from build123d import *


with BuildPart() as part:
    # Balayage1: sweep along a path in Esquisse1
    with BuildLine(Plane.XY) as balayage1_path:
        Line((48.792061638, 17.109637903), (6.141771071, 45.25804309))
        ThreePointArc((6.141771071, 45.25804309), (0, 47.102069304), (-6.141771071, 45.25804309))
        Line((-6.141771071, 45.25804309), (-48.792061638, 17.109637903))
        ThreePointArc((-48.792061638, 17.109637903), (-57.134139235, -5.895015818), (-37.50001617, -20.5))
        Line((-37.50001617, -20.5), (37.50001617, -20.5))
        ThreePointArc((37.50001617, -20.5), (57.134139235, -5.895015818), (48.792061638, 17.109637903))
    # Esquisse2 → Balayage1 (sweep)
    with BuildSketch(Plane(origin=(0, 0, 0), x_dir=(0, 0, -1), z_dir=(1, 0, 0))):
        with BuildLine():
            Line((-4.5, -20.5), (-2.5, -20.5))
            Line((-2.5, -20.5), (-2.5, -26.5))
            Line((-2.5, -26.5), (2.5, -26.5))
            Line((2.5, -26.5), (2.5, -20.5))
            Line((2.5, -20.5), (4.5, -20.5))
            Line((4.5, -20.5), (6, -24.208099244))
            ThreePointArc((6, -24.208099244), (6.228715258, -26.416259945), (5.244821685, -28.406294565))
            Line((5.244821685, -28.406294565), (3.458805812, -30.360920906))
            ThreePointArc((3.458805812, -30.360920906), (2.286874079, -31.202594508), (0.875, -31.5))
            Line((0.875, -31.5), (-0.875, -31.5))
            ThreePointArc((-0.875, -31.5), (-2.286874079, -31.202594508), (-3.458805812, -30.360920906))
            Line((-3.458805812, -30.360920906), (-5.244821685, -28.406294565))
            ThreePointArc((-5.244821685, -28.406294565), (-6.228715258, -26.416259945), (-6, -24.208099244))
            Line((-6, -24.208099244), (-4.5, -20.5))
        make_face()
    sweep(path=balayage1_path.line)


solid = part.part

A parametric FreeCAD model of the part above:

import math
import FreeCAD as App
import Part
import Sketcher
from FreeCAD import Vector
Q = App.Units.Quantity

doc = App.newDocument("Part")
params = doc.addObject("Spreadsheet::Sheet", "Params")
for row, (alias, value) in enumerate([
    ("sketch1_radius", "4 mm"),
    ("sketch1_radius2", "3.5 mm"),
    ("sketch1_width", "6 mm"),
    ("sketch1_height", "2 mm"),
    ("sketch1_height2", "5 mm"),
    ("sketch2_radius", "20.5 mm"),
    ("sketch2_radius2", "11.15 mm"),
], start=1):
    params.set(f"A{row}", alias)
    params.set(f"B{row}", "=" + value)
    params.setAlias(f"B{row}", alias)

body = doc.addObject("PartDesign::Body", "Body")

# Sketch on YZ plane
sketch1 = body.newObject("Sketcher::SketchObject", "Sketch")
sketch1.AttachmentSupport = (doc.getObject("YZ_Plane"), [""])
sketch1.MapMode = "FlatFace"
sketch1.addGeometry([
    Part.LineSegment(Vector(-20.5, 2.5, 0), Vector(-20.5, 4.5, 0)),  # 0
    Part.LineSegment(Vector(-20.5, 4.5, 0), Vector(-24.208099, 6, 0)),  # 1
    Part.ArcOfCircle(Part.Circle(Vector(-25.708099, 2.291901, 0), Vector(0, 0, 1), 4), math.radians(67.975687), math.radians(132.419124)),  # 2
    Part.LineSegment(Vector(-28.406295, 5.244822, 0), Vector(-30.360921, 3.458806, 0)),  # 3
    Part.ArcOfCircle(Part.Circle(Vector(-28, 0.875, 0), Vector(0, 0, 1), 3.5), math.radians(132.419124), math.radians(180)),  # 4
    Part.LineSegment(Vector(-31.5, 0.875, 0), Vector(-31.5, -0.875, 0)),  # 5
    Part.ArcOfCircle(Part.Circle(Vector(-28, -0.875, 0), Vector(0, 0, 1), 3.5), math.radians(-180), math.radians(-132.419124)),  # 6
    Part.LineSegment(Vector(-30.360921, -3.458806, 0), Vector(-28.406295, -5.244822, 0)),  # 7
    Part.ArcOfCircle(Part.Circle(Vector(-25.708099, -2.291901, 0), Vector(0, 0, 1), 4), math.radians(-132.419124), math.radians(-67.975687)),  # 8
    Part.LineSegment(Vector(-24.208099, -6, 0), Vector(-20.5, -4.5, 0)),  # 9
    Part.LineSegment(Vector(-20.5, -4.5, 0), Vector(-20.5, -2.5, 0)),  # 10
    Part.LineSegment(Vector(-20.5, -2.5, 0), Vector(-26.5, -2.5, 0)),  # 11
    Part.LineSegment(Vector(-26.5, -2.5, 0), Vector(-26.5, 2.5, 0)),  # 12
    Part.LineSegment(Vector(-26.5, 2.5, 0), Vector(-20.5, 2.5, 0)),  # 13
], False)
sketch1.addConstraint([
    Sketcher.Constraint("Coincident", 0, 2, 1, 1),
    Sketcher.Constraint("Tangent", 1, 2, 2, 1),
    Sketcher.Constraint("Tangent", 2, 2, 3, 1),
    Sketcher.Constraint("Tangent", 3, 2, 4, 1),
    Sketcher.Constraint("Tangent", 4, 2, 5, 1),
    Sketcher.Constraint("Tangent", 5, 2, 6, 1),
    Sketcher.Constraint("Tangent", 6, 2, 7, 1),
    Sketcher.Constraint("Tangent", 7, 2, 8, 1),
    Sketcher.Constraint("Tangent", 8, 2, 9, 1),
    Sketcher.Constraint("Coincident", 9, 2, 10, 1),
    Sketcher.Constraint("Coincident", 10, 2, 11, 1),
    Sketcher.Constraint("Coincident", 11, 2, 12, 1),
    Sketcher.Constraint("Coincident", 12, 2, 13, 1),
    Sketcher.Constraint("Coincident", 13, 2, 0, 1),
    Sketcher.Constraint("Vertical", 0),
    Sketcher.Constraint("Vertical", 5),
    Sketcher.Constraint("Vertical", 10),
    Sketcher.Constraint("Horizontal", 11),
    Sketcher.Constraint("Vertical", 12),
    Sketcher.Constraint("Horizontal", 13),
    Sketcher.Constraint("Equal", 4, 6),
    Sketcher.Constraint("Equal", 2, 8),
    Sketcher.Constraint("Symmetric", 2, 3, 8, 3, -1),
    Sketcher.Constraint("Symmetric", 0, 2, 9, 2, -1),
    Sketcher.Constraint("Vertical", 3, 2, 6, 2),
    Sketcher.Constraint("Equal", 0, 10),
    Sketcher.Constraint("Radius", 2, Q("4 mm")),
    Sketcher.Constraint("Radius", 4, Q("3.5 mm")),
    Sketcher.Constraint("DistanceX", 11, 2, 11, 1, Q("6 mm")),
    Sketcher.Constraint("DistanceY", 0, 1, 0, 2, Q("2 mm")),
    Sketcher.Constraint("DistanceY", 12, 1, 12, 2, Q("5 mm")),
    Sketcher.Constraint("Distance", 1, Q("4 mm")),
    Sketcher.Constraint("DistanceX", 4, 3, -1, 1, Q("28 mm")),
    Sketcher.Constraint("DistanceY", -1, 1, 1, 2, Q("6 mm")),
    Sketcher.Constraint("DistanceY", 5, 2, 5, 1, Q("1.75 mm")),
    Sketcher.Constraint("DistanceX", 0, 2, -1, 1, Q("20.5 mm")),
])
sketch1.setExpression("Constraints[26]", "Params.sketch1_radius")
sketch1.setExpression("Constraints[27]", "Params.sketch1_radius2")
sketch1.setExpression("Constraints[28]", "Params.sketch1_width")
sketch1.setExpression("Constraints[29]", "Params.sketch1_height")
sketch1.setExpression("Constraints[30]", "Params.sketch1_height2")

# Sketch on XY plane
sketch2 = body.newObject("Sketcher::SketchObject", "Sketch001")
sketch2.AttachmentSupport = (doc.getObject("XY_Plane"), [""])
sketch2.MapMode = "FlatFace"
sketch2.addGeometry([
    Part.LineSegment(Vector(48.792062, 17.109638, 0), Vector(6.141771, 45.258043, 0)),  # 0
    Part.ArcOfCircle(Part.Circle(Vector(0, 35.952069, 0), Vector(0, 0, 1), 11.15), math.radians(56.575925), math.radians(123.424075)),  # 1
    Part.LineSegment(Vector(-6.141771, 45.258043, 0), Vector(-48.792062, 17.109638, 0)),  # 2
    Part.ArcOfCircle(Part.Circle(Vector(-37.500016, 0, 0), Vector(0, 0, 1), 20.5), math.radians(123.424075), math.radians(270)),  # 3
    Part.LineSegment(Vector(-37.500016, -20.5, 0), Vector(37.500016, -20.5, 0)),  # 4
    Part.ArcOfCircle(Part.Circle(Vector(37.500016, 0, 0), Vector(0, 0, 1), 20.5), math.radians(-90), math.radians(56.575925)),  # 5
], False)
sketch2.addConstraint([
    Sketcher.Constraint("Tangent", 0, 2, 1, 1),
    Sketcher.Constraint("Tangent", 1, 2, 2, 1),
    Sketcher.Constraint("Tangent", 2, 2, 3, 1),
    Sketcher.Constraint("Tangent", 3, 2, 4, 1),
    Sketcher.Constraint("Tangent", 4, 2, 5, 1),
    Sketcher.Constraint("Tangent", 5, 2, 0, 1),
    Sketcher.Constraint("Horizontal", 4),
    Sketcher.Constraint("Equal", 3, 5),
    Sketcher.Constraint("Symmetric", 3, 3, 5, 3, -1, 1),
    Sketcher.Constraint("PointOnObject", 1, 3, -2),
    Sketcher.Constraint("Radius", 3, Q("20.5 mm")),
    Sketcher.Constraint("Radius", 1, Q("11.15 mm")),
    Sketcher.Constraint("DistanceX", 4, 1, 4, 2, Q("75.000032 mm")),
    Sketcher.Constraint("DistanceY", -1, 1, 1, 3, Q("35.952069 mm")),
])
sketch2.setExpression("Constraints[10]", "Params.sketch2_radius")
sketch2.setExpression("Constraints[11]", "Params.sketch2_radius2")
doc.recompute()

additivepipe = body.newObject("PartDesign::AdditivePipe", "AdditivePipe")
additivepipe.Profile = sketch1
additivepipe.Spine = (sketch2, ["Edge1", "Edge2", "Edge3", "Edge4", "Edge5", "Edge6"])

doc.recompute()
